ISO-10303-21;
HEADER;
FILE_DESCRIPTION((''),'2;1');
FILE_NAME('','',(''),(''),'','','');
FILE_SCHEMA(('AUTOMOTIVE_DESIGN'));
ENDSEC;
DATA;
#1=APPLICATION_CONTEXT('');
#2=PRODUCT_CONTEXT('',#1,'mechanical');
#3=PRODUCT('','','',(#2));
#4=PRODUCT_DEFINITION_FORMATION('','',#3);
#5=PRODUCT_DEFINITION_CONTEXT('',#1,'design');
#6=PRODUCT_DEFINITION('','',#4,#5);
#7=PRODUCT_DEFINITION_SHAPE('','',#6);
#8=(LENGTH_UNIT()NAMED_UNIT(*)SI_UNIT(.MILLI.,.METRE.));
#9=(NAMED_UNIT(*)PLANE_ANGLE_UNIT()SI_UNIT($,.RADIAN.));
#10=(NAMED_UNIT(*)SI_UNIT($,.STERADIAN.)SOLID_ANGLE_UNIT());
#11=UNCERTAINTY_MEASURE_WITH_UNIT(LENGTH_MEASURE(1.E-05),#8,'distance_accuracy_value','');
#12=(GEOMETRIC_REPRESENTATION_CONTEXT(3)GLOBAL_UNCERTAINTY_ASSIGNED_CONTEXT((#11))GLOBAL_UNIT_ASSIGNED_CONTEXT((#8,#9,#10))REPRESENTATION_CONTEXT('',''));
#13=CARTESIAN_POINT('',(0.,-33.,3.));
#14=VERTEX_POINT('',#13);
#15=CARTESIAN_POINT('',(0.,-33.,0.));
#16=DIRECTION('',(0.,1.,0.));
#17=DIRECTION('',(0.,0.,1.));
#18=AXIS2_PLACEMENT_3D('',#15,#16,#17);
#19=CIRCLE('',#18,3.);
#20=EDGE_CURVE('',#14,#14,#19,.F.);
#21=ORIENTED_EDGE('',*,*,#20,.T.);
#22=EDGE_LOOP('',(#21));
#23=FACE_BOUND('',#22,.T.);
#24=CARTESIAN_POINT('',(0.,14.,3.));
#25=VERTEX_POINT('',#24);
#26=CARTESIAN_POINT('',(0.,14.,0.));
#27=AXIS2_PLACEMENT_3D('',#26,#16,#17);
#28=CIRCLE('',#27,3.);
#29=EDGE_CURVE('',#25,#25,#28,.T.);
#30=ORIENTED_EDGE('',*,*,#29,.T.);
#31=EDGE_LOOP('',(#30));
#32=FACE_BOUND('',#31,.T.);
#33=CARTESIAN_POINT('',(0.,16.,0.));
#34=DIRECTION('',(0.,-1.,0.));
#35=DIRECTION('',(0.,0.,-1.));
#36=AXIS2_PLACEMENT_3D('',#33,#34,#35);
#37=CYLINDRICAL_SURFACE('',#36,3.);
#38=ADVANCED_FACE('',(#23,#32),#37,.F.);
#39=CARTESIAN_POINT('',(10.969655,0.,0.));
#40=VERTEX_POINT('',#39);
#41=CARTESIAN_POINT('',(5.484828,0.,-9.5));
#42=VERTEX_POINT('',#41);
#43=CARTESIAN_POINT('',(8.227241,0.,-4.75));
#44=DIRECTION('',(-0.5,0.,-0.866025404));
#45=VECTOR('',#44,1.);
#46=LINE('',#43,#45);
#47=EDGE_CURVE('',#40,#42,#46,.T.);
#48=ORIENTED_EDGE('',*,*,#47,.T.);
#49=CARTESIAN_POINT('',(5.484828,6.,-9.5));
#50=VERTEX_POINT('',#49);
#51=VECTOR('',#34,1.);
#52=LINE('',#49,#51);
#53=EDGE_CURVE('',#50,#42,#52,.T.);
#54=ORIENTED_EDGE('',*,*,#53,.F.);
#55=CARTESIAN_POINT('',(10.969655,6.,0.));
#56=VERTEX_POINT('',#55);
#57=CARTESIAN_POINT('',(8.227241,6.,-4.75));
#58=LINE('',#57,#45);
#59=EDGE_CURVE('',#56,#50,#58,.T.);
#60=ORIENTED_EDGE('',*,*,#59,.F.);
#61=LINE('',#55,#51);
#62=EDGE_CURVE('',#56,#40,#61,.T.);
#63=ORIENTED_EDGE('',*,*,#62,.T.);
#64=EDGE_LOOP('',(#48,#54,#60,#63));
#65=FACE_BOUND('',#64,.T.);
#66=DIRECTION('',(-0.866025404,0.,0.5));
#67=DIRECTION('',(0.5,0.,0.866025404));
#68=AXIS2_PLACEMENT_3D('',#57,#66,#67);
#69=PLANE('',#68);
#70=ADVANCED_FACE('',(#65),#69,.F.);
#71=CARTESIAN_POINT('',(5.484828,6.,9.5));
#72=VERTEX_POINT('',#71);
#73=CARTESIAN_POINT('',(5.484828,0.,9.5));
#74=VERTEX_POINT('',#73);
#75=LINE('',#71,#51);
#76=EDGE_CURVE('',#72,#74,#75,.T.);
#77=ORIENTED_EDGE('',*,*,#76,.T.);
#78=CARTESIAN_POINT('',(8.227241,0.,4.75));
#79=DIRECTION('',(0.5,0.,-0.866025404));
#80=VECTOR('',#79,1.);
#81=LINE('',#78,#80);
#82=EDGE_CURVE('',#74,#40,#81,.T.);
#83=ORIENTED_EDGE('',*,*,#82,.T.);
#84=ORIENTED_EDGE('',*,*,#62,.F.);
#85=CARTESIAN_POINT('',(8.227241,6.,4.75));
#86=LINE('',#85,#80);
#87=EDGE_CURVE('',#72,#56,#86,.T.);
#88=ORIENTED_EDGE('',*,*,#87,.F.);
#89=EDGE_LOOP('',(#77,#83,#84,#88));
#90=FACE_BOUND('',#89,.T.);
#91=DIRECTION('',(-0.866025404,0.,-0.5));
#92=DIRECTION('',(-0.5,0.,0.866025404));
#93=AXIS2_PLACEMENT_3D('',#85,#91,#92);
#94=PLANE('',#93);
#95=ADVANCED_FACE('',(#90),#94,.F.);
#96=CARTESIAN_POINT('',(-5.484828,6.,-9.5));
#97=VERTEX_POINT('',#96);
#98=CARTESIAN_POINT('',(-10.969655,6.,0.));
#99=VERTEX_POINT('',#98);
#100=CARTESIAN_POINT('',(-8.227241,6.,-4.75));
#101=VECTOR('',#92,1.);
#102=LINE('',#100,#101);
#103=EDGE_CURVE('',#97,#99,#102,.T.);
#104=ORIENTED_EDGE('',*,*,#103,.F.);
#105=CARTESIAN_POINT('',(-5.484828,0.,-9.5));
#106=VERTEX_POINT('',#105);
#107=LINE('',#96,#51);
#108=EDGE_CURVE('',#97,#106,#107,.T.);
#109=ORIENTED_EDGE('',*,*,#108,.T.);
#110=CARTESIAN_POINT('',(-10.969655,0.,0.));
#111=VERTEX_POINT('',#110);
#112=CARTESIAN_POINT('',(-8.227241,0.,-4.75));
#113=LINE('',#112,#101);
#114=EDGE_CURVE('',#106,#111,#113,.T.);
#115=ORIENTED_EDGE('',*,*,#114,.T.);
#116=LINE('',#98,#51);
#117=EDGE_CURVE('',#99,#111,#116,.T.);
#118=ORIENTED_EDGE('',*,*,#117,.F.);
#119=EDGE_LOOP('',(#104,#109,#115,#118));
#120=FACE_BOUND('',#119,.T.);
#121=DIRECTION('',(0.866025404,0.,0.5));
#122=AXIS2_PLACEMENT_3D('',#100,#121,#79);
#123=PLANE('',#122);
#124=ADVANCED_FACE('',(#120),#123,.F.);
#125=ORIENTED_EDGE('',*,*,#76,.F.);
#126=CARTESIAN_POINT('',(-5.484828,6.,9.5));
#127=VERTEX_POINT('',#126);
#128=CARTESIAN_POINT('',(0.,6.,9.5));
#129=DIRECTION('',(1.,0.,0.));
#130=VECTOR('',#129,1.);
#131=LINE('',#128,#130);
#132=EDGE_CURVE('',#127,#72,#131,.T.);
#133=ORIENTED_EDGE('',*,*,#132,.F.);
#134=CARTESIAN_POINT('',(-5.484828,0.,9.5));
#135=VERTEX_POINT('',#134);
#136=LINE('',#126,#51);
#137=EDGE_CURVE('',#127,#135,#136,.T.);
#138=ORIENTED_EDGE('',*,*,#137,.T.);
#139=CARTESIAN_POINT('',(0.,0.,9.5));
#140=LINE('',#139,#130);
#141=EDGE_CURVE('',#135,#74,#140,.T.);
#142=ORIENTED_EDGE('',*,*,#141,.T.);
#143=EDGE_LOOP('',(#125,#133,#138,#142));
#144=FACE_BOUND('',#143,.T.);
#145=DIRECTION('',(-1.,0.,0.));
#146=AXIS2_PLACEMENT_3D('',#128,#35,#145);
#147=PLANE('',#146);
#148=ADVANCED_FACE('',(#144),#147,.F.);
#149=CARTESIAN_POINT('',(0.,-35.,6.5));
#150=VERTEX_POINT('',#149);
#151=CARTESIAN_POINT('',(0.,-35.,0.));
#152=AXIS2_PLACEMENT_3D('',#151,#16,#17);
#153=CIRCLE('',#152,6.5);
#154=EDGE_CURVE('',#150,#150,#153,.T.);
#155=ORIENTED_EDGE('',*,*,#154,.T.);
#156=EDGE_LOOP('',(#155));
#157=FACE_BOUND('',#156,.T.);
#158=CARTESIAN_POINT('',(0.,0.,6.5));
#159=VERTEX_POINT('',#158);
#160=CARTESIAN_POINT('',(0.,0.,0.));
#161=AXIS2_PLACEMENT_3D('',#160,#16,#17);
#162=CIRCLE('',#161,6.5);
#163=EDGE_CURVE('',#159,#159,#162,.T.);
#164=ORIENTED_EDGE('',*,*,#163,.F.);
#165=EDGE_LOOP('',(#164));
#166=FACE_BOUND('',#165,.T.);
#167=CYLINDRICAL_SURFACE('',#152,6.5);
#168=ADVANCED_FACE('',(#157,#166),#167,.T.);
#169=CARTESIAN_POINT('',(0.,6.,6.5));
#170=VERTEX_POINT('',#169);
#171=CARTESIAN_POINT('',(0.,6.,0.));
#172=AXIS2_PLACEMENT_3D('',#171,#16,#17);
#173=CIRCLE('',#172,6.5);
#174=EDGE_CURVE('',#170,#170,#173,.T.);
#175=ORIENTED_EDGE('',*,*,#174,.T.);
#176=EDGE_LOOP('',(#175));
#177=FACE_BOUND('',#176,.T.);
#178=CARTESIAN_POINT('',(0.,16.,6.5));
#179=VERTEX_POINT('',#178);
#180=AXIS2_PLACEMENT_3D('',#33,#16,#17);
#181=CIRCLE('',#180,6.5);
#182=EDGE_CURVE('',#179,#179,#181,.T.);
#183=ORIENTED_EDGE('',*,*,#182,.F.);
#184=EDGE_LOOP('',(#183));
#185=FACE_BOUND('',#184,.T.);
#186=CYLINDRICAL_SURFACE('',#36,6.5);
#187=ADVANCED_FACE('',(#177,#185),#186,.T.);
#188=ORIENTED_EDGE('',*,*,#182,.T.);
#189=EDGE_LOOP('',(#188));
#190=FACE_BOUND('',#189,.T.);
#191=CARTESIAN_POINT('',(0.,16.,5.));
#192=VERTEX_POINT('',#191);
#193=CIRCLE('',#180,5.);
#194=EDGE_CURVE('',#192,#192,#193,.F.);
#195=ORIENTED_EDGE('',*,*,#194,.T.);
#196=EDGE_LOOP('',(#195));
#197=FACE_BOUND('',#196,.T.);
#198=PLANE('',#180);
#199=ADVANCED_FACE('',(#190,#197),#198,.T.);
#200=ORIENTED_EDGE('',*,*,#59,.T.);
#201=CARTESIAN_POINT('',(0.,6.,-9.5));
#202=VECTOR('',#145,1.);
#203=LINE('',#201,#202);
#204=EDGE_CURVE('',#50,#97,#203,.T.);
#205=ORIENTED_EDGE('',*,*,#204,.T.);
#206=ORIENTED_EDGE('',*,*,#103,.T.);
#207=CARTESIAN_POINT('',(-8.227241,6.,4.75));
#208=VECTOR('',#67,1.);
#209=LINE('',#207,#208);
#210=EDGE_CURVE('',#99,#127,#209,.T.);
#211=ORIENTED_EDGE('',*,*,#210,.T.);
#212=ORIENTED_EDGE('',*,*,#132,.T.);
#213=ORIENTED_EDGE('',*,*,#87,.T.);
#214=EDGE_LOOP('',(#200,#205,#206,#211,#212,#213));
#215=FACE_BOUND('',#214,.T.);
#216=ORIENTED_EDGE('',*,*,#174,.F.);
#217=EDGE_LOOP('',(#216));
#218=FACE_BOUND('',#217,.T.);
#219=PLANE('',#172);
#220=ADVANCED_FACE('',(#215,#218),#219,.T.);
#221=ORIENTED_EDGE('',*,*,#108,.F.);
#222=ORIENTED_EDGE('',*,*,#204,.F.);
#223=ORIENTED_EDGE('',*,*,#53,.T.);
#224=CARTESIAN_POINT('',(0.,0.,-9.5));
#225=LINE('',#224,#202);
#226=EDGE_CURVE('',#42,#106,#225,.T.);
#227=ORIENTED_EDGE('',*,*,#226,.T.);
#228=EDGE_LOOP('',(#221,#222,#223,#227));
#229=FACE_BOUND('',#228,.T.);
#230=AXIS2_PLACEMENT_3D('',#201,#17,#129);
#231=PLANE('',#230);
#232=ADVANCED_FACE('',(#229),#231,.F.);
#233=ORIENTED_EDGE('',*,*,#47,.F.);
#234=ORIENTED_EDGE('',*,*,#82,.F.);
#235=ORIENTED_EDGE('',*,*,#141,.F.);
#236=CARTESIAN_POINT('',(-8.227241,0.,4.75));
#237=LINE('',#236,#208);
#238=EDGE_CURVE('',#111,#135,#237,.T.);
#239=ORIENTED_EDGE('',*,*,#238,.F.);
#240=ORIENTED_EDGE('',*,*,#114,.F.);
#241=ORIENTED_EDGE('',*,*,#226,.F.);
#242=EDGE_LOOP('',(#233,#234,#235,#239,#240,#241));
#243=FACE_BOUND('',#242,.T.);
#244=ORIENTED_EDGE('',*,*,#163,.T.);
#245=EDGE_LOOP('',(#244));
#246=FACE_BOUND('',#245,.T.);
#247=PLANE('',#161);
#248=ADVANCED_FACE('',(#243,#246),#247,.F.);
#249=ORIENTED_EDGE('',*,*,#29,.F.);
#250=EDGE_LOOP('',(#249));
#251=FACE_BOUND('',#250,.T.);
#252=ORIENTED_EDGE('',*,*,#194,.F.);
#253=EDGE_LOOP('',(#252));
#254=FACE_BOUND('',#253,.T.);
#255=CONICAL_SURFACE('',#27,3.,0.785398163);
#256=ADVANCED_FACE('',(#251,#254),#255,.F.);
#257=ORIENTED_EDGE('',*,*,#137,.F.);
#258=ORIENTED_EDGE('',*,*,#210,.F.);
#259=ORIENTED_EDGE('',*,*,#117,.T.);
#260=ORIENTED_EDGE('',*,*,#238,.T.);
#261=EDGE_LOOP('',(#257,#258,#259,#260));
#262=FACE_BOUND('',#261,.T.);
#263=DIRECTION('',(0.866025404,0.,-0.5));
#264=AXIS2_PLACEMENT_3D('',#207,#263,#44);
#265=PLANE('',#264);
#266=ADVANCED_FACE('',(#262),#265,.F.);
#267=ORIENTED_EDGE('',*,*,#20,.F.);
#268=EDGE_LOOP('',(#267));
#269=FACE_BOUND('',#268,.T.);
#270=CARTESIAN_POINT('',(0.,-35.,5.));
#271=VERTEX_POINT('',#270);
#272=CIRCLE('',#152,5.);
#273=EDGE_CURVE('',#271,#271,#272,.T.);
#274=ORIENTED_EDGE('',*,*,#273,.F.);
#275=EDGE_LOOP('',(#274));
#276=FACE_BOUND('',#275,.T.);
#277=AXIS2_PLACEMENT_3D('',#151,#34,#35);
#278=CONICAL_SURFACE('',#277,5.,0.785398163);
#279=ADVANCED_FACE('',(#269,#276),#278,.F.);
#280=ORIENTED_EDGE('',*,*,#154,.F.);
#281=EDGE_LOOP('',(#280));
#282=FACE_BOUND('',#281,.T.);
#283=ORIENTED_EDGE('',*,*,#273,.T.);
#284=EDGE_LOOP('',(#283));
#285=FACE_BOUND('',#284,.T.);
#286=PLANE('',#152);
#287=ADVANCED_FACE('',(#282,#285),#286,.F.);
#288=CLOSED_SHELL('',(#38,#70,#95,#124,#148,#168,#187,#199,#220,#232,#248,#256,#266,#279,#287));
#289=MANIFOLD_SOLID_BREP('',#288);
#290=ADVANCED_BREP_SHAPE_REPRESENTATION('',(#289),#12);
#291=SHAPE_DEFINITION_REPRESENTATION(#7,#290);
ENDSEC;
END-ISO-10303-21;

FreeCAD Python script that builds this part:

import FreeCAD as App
import Part
import Sketcher

V = App.Vector
Q = App.Units.Quantity


def edges_at(feature, points):
    """Names of the edges that pass closest to the given points."""
    edges = feature.Shape.Edges
    near = lambda p: min(range(len(edges)), key=lambda i: edges[i].distToShape(Part.Vertex(*p))[0])
    return sorted({f"Edge{near(p) + 1}" for p in points})


def add_polygon(sketch, points):
    """Adds a closed chain of lines whose ends are joined by coincident constraints."""
    first, n = sketch.GeometryCount, len(points)
    for a, b in zip(points, points[1:] + points[:1]):
        sketch.addGeometry(Part.LineSegment(App.Vector(*a, 0), App.Vector(*b, 0)), False)
    for i in range(n):
        sketch.addConstraint(Sketcher.Constraint("Coincident", first + i, 2, first + (i + 1) % n, 1))

doc = App.newDocument("Part")
params = doc.addObject("Spreadsheet::Sheet", "Params")
for row, (alias, value) in enumerate([
    ("sketch1_diameter", "13 mm"),
    ("pad1_length", "6 mm"),
    ("sketch2_diameter", "13 mm"),
    ("sketch2_diameter2", "6 mm"),
    ("pad2_length", "16 mm"),
    ("sketch3_diameter", "13 mm"),
    ("sketch3_diameter2", "6 mm"),
    ("pad3_length", "16 mm"),
    ("pad3_length2", "35 mm"),
    ("chamfer_size", "2 mm"),
    ("chamfer2_size", "2 mm"),
], start=1):
    params.set(f"A{row}", alias)
    params.set(f"B{row}", "=" + value)
    params.setAlias(f"B{row}", alias)

body = doc.addObject("PartDesign::Body", "Body")

sketch1 = body.newObject("Sketcher::SketchObject", "Sketch")
sketch1.AttachmentSupport = (doc.getObject("XZ_Plane"), [""])
sketch1.MapMode = "FlatFace"
add_polygon(sketch1, [(5, -10), (-5, -10), (-11, 0), (-5, 10), (5, 10), (11, 0)])
sketch1.addGeometry(Part.Circle(V(0, 0, 0), V(0, 0, 1), 6), False)
sketch1.addConstraint([
    Sketcher.Constraint("Horizontal", 0),
    Sketcher.Constraint("Horizontal", 3),
    Sketcher.Constraint("Coincident", 6, 3, -1, 1),
    Sketcher.Constraint("Symmetric", 0, 2, 3, 2, -1, 1),
    Sketcher.Constraint("Symmetric", 1, 2, 4, 2, -1, 1),
    Sketcher.Constraint("PointOnObject", 1, 2, -1),
    Sketcher.Constraint("Parallel", 2, 5),
    Sketcher.Constraint("Vertical", 0, 2, 2, 2),
    Sketcher.Constraint("Diameter", 6, 13.0),
    Sketcher.Constraint("Angle", 1, Q("120 deg")),
    Sketcher.Constraint("DistanceY", 0, 2, 2, 2, 19.0),
    Sketcher.Constraint("DistanceX", 0, 2, 0, 1, 10.969655),
])
sketch1.setExpression("Constraints[14]", "Params.sketch1_diameter")
pad1 = body.newObject("PartDesign::Pad", "Pad")
pad1.Profile = sketch1
pad1.setExpression("Length", "Params.pad1_length")
pad1.Reversed = True

sketch2 = body.newObject("Sketcher::SketchObject", "Sketch001")
sketch2.AttachmentSupport = (doc.getObject("XZ_Plane"), [""])
sketch2.MapMode = "FlatFace"
sketch2.addGeometry([
    Part.Circle(V(0, 0, 0), V(0, 0, 1), 6.5),
    Part.Circle(V(0, 0, 0), V(0, 0, 1), 3),
], False)
sketch2.addConstraint([
    Sketcher.Constraint("Coincident", 0, 3, -1, 1),
    Sketcher.Constraint("Coincident", 1, 3, -1, 1),
    Sketcher.Constraint("Diameter", 0, 13.0),
    Sketcher.Constraint("Diameter", 1, 6.0),
])
sketch2.setExpression("Constraints[2]", "Params.sketch2_diameter")
sketch2.setExpression("Constraints[3]", "Params.sketch2_diameter2")
pad2 = body.newObject("PartDesign::Pad", "Pad001")
pad2.Profile = sketch2
pad2.setExpression("Length", "Params.pad2_length")
pad2.Reversed = True

sketch3 = body.newObject("Sketcher::SketchObject", "Sketch002")
sketch3.AttachmentSupport = (doc.getObject("XZ_Plane"), [""])
sketch3.MapMode = "FlatFace"
sketch3.addGeometry([
    Part.Circle(V(0, 0, 0), V(0, 0, 1), 6.5),
    Part.Circle(V(0, 0, 0), V(0, 0, 1), 3),
], False)
sketch3.addConstraint([
    Sketcher.Constraint("Coincident", 0, 3, -1, 1),
    Sketcher.Constraint("Coincident", 1, 3, -1, 1),
    Sketcher.Constraint("Diameter", 0, 13.0),
    Sketcher.Constraint("Diameter", 1, 6.0),
])
sketch3.setExpression("Constraints[2]", "Params.sketch3_diameter")
sketch3.setExpression("Constraints[3]", "Params.sketch3_diameter2")
pad3 = body.newObject("PartDesign::Pad", "Pad002")
pad3.Profile = sketch3
pad3.Type = "TwoLengths"
pad3.setExpression("Length", "Params.pad3_length")
pad3.setExpression("Length2", "Params.pad3_length2")
pad3.Reversed = True
doc.recompute()

chamfer = body.newObject("PartDesign::Chamfer", "Chamfer")
chamfer.Base = (pad3, edges_at(pad3, [(0, 16, -3)]))
chamfer.setExpression("Size", "Params.chamfer_size")
doc.recompute()

chamfer2 = body.newObject("PartDesign::Chamfer", "Chamfer001")
chamfer2.Base = (chamfer, edges_at(chamfer, [(0, -35, -3)]))
chamfer2.setExpression("Size", "Params.chamfer2_size")

doc.recompute()
